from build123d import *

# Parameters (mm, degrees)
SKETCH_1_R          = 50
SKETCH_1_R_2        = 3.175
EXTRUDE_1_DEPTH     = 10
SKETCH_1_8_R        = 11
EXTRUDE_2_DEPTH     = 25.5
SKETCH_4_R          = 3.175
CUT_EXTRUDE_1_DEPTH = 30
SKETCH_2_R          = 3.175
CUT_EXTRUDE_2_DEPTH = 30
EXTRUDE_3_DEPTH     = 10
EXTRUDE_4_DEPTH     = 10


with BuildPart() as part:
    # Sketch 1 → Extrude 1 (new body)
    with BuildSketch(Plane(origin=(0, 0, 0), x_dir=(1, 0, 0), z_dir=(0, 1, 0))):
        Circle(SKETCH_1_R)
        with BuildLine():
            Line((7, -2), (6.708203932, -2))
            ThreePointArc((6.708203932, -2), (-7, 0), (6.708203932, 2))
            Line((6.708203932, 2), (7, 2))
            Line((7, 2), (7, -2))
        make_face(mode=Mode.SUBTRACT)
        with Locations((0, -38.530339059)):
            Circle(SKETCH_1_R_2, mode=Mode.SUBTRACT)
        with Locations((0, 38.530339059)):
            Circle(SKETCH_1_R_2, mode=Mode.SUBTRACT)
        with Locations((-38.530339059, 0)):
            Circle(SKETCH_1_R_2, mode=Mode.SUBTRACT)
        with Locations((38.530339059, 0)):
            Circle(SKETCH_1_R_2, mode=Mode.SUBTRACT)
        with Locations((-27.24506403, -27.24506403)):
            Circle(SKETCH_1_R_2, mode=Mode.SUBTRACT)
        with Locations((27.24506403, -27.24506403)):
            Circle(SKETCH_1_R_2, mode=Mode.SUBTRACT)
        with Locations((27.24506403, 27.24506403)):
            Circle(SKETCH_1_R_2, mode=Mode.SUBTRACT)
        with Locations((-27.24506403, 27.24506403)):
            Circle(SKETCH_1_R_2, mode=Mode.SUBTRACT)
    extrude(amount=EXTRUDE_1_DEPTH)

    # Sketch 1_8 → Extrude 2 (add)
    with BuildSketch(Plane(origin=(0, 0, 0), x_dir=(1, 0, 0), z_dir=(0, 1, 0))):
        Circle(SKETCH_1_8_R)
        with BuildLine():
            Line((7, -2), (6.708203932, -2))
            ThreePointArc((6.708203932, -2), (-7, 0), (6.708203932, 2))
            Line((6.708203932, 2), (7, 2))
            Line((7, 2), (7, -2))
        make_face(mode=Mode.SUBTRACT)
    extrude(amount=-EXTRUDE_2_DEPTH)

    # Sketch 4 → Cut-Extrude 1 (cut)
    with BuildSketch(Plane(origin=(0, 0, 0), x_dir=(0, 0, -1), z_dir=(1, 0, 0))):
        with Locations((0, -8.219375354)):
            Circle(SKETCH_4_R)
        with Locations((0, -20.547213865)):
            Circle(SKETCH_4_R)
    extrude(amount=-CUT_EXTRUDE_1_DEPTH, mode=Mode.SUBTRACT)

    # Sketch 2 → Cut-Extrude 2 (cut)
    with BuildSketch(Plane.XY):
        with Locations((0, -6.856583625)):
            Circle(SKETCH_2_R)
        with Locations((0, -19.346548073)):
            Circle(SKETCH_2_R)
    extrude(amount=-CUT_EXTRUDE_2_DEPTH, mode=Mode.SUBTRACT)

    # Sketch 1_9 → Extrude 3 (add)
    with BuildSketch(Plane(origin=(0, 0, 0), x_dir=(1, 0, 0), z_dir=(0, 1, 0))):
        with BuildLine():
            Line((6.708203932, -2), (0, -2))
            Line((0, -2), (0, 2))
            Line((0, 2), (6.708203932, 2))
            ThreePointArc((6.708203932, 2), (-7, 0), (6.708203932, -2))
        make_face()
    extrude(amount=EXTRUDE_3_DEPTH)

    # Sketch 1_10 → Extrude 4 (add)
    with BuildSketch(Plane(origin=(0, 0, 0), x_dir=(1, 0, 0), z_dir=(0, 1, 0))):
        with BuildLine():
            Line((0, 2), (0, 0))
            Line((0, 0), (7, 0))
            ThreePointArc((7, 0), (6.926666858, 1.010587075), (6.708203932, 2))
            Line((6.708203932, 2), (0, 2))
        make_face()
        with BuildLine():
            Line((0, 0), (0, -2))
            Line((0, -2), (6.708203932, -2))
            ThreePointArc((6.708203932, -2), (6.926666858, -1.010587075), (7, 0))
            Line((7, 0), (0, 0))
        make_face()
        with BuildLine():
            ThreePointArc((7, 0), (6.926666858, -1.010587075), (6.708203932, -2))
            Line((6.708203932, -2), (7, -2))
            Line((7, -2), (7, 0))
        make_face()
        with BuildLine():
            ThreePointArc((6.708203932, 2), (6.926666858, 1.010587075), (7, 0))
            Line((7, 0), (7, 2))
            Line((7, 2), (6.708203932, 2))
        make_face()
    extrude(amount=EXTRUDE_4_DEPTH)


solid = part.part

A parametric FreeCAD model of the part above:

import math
import FreeCAD as App
import Part
import Sketcher
from FreeCAD import Vector

doc = App.newDocument("Part")
body = doc.addObject("PartDesign::Body", "Body")

# Sketch on XZ plane
sketch1 = body.newObject("Sketcher::SketchObject", "Sketch")
sketch1.AttachmentSupport = (doc.getObject("XZ_Plane"), [""])
sketch1.MapMode = "FlatFace"
sketch1.addGeometry(Part.Circle(Vector(0, 0, 0), Vector(0, 0, 1), 50), False)
sketch1.addGeometry(Part.Circle(Vector(-27.245064, 27.245064, 0), Vector(0, 0, 1), 3.175), False)
sketch1.addGeometry(Part.Circle(Vector(0, 38.530339, 0), Vector(0, 0, 1), 3.175), False)
sketch1.addGeometry(Part.Circle(Vector(27.245064, 27.245064, 0), Vector(0, 0, 1), 3.175), False)
sketch1.addGeometry(Part.LineSegment(Vector(7, -2, 0), Vector(7, 2, 0)), False)
sketch1.addGeometry(Part.LineSegment(Vector(7, 2, 0), Vector(6.708204, 2, 0)), False)
sketch1.addGeometry(Part.ArcOfCircle(Part.Circle(Vector(0, 0, 0), Vector(0, 0, 1), 7), math.radians(16.60155), math.radians(343.39845)), False)
sketch1.addGeometry(Part.LineSegment(Vector(6.708204, -2, 0), Vector(7, -2, 0)), False)
sketch1.addGeometry(Part.Circle(Vector(-38.530339, 0, 0), Vector(0, 0, 1), 3.175), False)
sketch1.addGeometry(Part.Circle(Vector(-27.245064, -27.245064, 0), Vector(0, 0, 1), 3.175), False)
sketch1.addGeometry(Part.Circle(Vector(38.530339, 0, 0), Vector(0, 0, 1), 3.175), False)
sketch1.addGeometry(Part.Circle(Vector(0, -38.530339, 0), Vector(0, 0, 1), 3.175), False)
sketch1.addGeometry(Part.Circle(Vector(27.245064, -27.245064, 0), Vector(0, 0, 1), 3.175), False)
sketch1.addConstraint(Sketcher.Constraint("Coincident", 4, 2, 5, 1))
sketch1.addConstraint(Sketcher.Constraint("Coincident", 5, 2, 6, 1))
sketch1.addConstraint(Sketcher.Constraint("Coincident", 6, 2, 7, 1))
sketch1.addConstraint(Sketcher.Constraint("Coincident", 7, 2, 4, 1))
sketch1.addConstraint(Sketcher.Constraint("Vertical", 4))
sketch1.addConstraint(Sketcher.Constraint("Horizontal", 5))
sketch1.addConstraint(Sketcher.Constraint("Horizontal", 7))
sketch1.addConstraint(Sketcher.Constraint("Coincident", 0, 3, -1, 1))
sketch1.addConstraint(Sketcher.Constraint("Coincident", 6, 3, -1, 1))
sketch1.addConstraint(Sketcher.Constraint("Equal", 1, 2))
sketch1.addConstraint(Sketcher.Constraint("Equal", 2, 3))
sketch1.addConstraint(Sketcher.Constraint("Equal", 3, 8))
sketch1.addConstraint(Sketcher.Constraint("Equal", 8, 9))
sketch1.addConstraint(Sketcher.Constraint("Equal", 9, 10))
sketch1.addConstraint(Sketcher.Constraint("Equal", 10, 11))
sketch1.addConstraint(Sketcher.Constraint("Equal", 11, 12))
sketch1.addConstraint(Sketcher.Constraint("Symmetric", 3, 3, 9, 3, -1, 1))
sketch1.addConstraint(Sketcher.Constraint("Symmetric", 8, 3, 10, 3, -1, 1))
sketch1.addConstraint(Sketcher.Constraint("Symmetric", 2, 3, 11, 3, -1, 1))
sketch1.addConstraint(Sketcher.Constraint("Symmetric", 1, 3, 12, 3, -1, 1))
sketch1.addConstraint(Sketcher.Constraint("Symmetric", 1, 3, 3, 3, -2))
sketch1.addConstraint(Sketcher.Constraint("PointOnObject", 2, 3, -2))
sketch1.addConstraint(Sketcher.Constraint("PointOnObject", 8, 3, -1))
sketch1.addConstraint(Sketcher.Constraint("Vertical", 5, 2, 6, 2))
sketch1.addConstraint(Sketcher.Constraint("Diameter", 0, 100.0))
sketch1.addConstraint(Sketcher.Constraint("Radius", 6, 7.0))
sketch1.addConstraint(Sketcher.Constraint("Diameter", 1, 6.35))
sketch1.addConstraint(Sketcher.Constraint("DistanceY", 4, 1, 4, 2, 4.0))
sketch1.addConstraint(Sketcher.Constraint("DistanceX", -1, 1, 4, 2, 7.0))
sketch1.addConstraint(Sketcher.Constraint("DistanceY", -1, 1, 2, 3, 38.530339))
sketch1.addConstraint(Sketcher.Constraint("DistanceX", 8, 3, -1, 1, 38.530339))
sketch1.addConstraint(Sketcher.Constraint("DistanceX", 1, 3, 3, 3, 54.490128))
sketch1.addConstraint(Sketcher.Constraint("DistanceY", 9, 3, 1, 3, 54.490128))
pad1 = body.newObject("PartDesign::Pad", "Pad")
pad1.Profile = sketch1
pad1.Length = 10
pad1.Reversed = True

# Sketch on XZ plane
sketch2 = body.newObject("Sketcher::SketchObject", "Sketch001")
sketch2.AttachmentSupport = (doc.getObject("XZ_Plane"), [""])
sketch2.MapMode = "FlatFace"
sketch2.addGeometry(Part.Circle(Vector(0, 0, 0), Vector(0, 0, 1), 11), False)
sketch2.addGeometry(Part.LineSegment(Vector(7, -2, 0), Vector(7, 2, 0)), False)
sketch2.addGeometry(Part.LineSegment(Vector(7, 2, 0), Vector(6.708204, 2, 0)), False)
sketch2.addGeometry(Part.ArcOfCircle(Part.Circle(Vector(0, 0, 0), Vector(0, 0, 1), 7), math.radians(16.60155), math.radians(343.39845)), False)
sketch2.addGeometry(Part.LineSegment(Vector(6.708204, -2, 0), Vector(7, -2, 0)), False)
sketch2.addConstraint(Sketcher.Constraint("Coincident", 1, 2, 2, 1))
sketch2.addConstraint(Sketcher.Constraint("Coincident", 2, 2, 3, 1))
sketch2.addConstraint(Sketcher.Constraint("Coincident", 3, 2, 4, 1))
sketch2.addConstraint(Sketcher.Constraint("Coincident", 4, 2, 1, 1))
sketch2.addConstraint(Sketcher.Constraint("Vertical", 1))
sketch2.addConstraint(Sketcher.Constraint("Horizontal", 2))
sketch2.addConstraint(Sketcher.Constraint("Horizontal", 4))
sketch2.addConstraint(Sketcher.Constraint("Coincident", 0, 3, -1, 1))
sketch2.addConstraint(Sketcher.Constraint("Coincident", 3, 3, -1, 1))
sketch2.addConstraint(Sketcher.Constraint("Vertical", 2, 2, 3, 2))
sketch2.addConstraint(Sketcher.Constraint("Diameter", 0, 22.0))
sketch2.addConstraint(Sketcher.Constraint("Radius", 3, 7.0))
sketch2.addConstraint(Sketcher.Constraint("DistanceY", 1, 1, 1, 2, 4.0))
sketch2.addConstraint(Sketcher.Constraint("DistanceX", -1, 1, 1, 2, 7.0))
pad2 = body.newObject("PartDesign::Pad", "Pad001")
pad2.Profile = sketch2
pad2.Length = 25.5

# Sketch on YZ plane
sketch3 = body.newObject("Sketcher::SketchObject", "Sketch002")
sketch3.AttachmentSupport = (doc.getObject("YZ_Plane"), [""])
sketch3.MapMode = "FlatFace"
sketch3.addGeometry(Part.Circle(Vector(-8.219375, 0, 0), Vector(0, 0, 1), 3.175), False)
sketch3.addGeometry(Part.Circle(Vector(-20.547214, 0, 0), Vector(0, 0, 1), 3.175), False)
sketch3.addConstraint(Sketcher.Constraint("Equal", 0, 1))
sketch3.addConstraint(Sketcher.Constraint("PointOnObject", 0, 3, -1))
sketch3.addConstraint(Sketcher.Constraint("PointOnObject", 1, 3, -1))
sketch3.addConstraint(Sketcher.Constraint("Diameter", 0, 6.35))
sketch3.addConstraint(Sketcher.Constraint("DistanceX", 1, 3, 0, 3, 12.327839))
sketch3.addConstraint(Sketcher.Constraint("DistanceX", 0, 3, -1, 1, 8.219375))
pocket1 = body.newObject("PartDesign::Pocket", "Pocket")
pocket1.Profile = sketch3
pocket1.Length = 30

# Sketch on XY plane
sketch4 = body.newObject("Sketcher::SketchObject", "Sketch003")
sketch4.AttachmentSupport = (doc.getObject("XY_Plane"), [""])
sketch4.MapMode = "FlatFace"
sketch4.addGeometry(Part.Circle(Vector(0, -6.856584, 0), Vector(0, 0, 1), 3.175), False)
sketch4.addGeometry(Part.Circle(Vector(0, -19.346548, 0), Vector(0, 0, 1), 3.175), False)
sketch4.addConstraint(Sketcher.Constraint("Equal", 0, 1))
sketch4.addConstraint(Sketcher.Constraint("PointOnObject", 0, 3, -2))
sketch4.addConstraint(Sketcher.Constraint("PointOnObject", 1, 3, -2))
sketch4.addConstraint(Sketcher.Constraint("Diameter", 0, 6.35))
sketch4.addConstraint(Sketcher.Constraint("DistanceY", 1, 3, -1, 1, 19.346548))
sketch4.addConstraint(Sketcher.Constraint("DistanceY", 0, 3, -1, 1, 6.856584))
pocket2 = body.newObject("PartDesign::Pocket", "Pocket001")
pocket2.Profile = sketch4
pocket2.Length = 30

# Sketch on XZ plane
sketch5 = body.newObject("Sketcher::SketchObject", "Sketch004")
sketch5.AttachmentSupport = (doc.getObject("XZ_Plane"), [""])
sketch5.MapMode = "FlatFace"
sketch5.addGeometry(Part.LineSegment(Vector(6.708204, 2, 0), Vector(0, 2, 0)), False)
sketch5.addGeometry(Part.LineSegment(Vector(0, 2, 0), Vector(0, -2, 0)), False)
sketch5.addGeometry(Part.LineSegment(Vector(0, -2, 0), Vector(6.708204, -2, 0)), False)
sketch5.addGeometry(Part.ArcOfCircle(Part.Circle(Vector(0, 0, 0), Vector(0, 0, 1), 7), math.radians(16.60155), math.radians(343.39845)), False)
sketch5.addConstraint(Sketcher.Constraint("Coincident", 0, 2, 1, 1))
sketch5.addConstraint(Sketcher.Constraint("Coincident", 1, 2, 2, 1))
sketch5.addConstraint(Sketcher.Constraint("Coincident", 2, 2, 3, 2))
sketch5.addConstraint(Sketcher.Constraint("Coincident", 3, 1, 0, 1))
sketch5.addConstraint(Sketcher.Constraint("Horizontal", 0))
sketch5.addConstraint(Sketcher.Constraint("Vertical", 1))
sketch5.addConstraint(Sketcher.Constraint("Horizontal", 2))
sketch5.addConstraint(Sketcher.Constraint("Coincident", 3, 3, -1, 1))
sketch5.addConstraint(Sketcher.Constraint("Symmetric", 0, 2, 1, 2, -1, 1))
sketch5.addConstraint(Sketcher.Constraint("Radius", 3, 7.0))
sketch5.addConstraint(Sketcher.Constraint("DistanceY", 1, 2, 1, 1, 4.0))
pad3 = body.newObject("PartDesign::Pad", "Pad002")
pad3.Profile = sketch5
pad3.Length = 10
pad3.Reversed = True

# Sketch on XZ plane
sketch6 = body.newObject("Sketcher::SketchObject", "Sketch005")
sketch6.AttachmentSupport = (doc.getObject("XZ_Plane"), [""])
sketch6.MapMode = "FlatFace"
sketch6.addGeometry(Part.LineSegment(Vector(0, -2, 0), Vector(0, 2, 0)), False)
sketch6.addGeometry(Part.LineSegment(Vector(0, 2, 0), Vector(7, 2, 0)), False)
sketch6.addGeometry(Part.LineSegment(Vector(7, 2, 0), Vector(7, -2, 0)), False)
sketch6.addGeometry(Part.LineSegment(Vector(7, -2, 0), Vector(0, -2, 0)), False)
sketch6.addConstraint(Sketcher.Constraint("Coincident", 0, 2, 1, 1))
sketch6.addConstraint(Sketcher.Constraint("Coincident", 1, 2, 2, 1))
sketch6.addConstraint(Sketcher.Constraint("Coincident", 2, 2, 3, 1))
sketch6.addConstraint(Sketcher.Constraint("Coincident", 3, 2, 0, 1))
sketch6.addConstraint(Sketcher.Constraint("Vertical", 0))
sketch6.addConstraint(Sketcher.Constraint("Horizontal", 1))
sketch6.addConstraint(Sketcher.Constraint("Vertical", 2))
sketch6.addConstraint(Sketcher.Constraint("Horizontal", 3))
sketch6.addConstraint(Sketcher.Constraint("Symmetric", 0, 2, 3, 2, -1, 1))
sketch6.addConstraint(Sketcher.Constraint("DistanceX", 1, 1, 1, 2, 7.0))
sketch6.addConstraint(Sketcher.Constraint("DistanceY", 0, 1, 0, 2, 4.0))
pad4 = body.newObject("PartDesign::Pad", "Pad003")
pad4.Profile = sketch6
pad4.Length = 10
pad4.Reversed = True

doc.recompute()
